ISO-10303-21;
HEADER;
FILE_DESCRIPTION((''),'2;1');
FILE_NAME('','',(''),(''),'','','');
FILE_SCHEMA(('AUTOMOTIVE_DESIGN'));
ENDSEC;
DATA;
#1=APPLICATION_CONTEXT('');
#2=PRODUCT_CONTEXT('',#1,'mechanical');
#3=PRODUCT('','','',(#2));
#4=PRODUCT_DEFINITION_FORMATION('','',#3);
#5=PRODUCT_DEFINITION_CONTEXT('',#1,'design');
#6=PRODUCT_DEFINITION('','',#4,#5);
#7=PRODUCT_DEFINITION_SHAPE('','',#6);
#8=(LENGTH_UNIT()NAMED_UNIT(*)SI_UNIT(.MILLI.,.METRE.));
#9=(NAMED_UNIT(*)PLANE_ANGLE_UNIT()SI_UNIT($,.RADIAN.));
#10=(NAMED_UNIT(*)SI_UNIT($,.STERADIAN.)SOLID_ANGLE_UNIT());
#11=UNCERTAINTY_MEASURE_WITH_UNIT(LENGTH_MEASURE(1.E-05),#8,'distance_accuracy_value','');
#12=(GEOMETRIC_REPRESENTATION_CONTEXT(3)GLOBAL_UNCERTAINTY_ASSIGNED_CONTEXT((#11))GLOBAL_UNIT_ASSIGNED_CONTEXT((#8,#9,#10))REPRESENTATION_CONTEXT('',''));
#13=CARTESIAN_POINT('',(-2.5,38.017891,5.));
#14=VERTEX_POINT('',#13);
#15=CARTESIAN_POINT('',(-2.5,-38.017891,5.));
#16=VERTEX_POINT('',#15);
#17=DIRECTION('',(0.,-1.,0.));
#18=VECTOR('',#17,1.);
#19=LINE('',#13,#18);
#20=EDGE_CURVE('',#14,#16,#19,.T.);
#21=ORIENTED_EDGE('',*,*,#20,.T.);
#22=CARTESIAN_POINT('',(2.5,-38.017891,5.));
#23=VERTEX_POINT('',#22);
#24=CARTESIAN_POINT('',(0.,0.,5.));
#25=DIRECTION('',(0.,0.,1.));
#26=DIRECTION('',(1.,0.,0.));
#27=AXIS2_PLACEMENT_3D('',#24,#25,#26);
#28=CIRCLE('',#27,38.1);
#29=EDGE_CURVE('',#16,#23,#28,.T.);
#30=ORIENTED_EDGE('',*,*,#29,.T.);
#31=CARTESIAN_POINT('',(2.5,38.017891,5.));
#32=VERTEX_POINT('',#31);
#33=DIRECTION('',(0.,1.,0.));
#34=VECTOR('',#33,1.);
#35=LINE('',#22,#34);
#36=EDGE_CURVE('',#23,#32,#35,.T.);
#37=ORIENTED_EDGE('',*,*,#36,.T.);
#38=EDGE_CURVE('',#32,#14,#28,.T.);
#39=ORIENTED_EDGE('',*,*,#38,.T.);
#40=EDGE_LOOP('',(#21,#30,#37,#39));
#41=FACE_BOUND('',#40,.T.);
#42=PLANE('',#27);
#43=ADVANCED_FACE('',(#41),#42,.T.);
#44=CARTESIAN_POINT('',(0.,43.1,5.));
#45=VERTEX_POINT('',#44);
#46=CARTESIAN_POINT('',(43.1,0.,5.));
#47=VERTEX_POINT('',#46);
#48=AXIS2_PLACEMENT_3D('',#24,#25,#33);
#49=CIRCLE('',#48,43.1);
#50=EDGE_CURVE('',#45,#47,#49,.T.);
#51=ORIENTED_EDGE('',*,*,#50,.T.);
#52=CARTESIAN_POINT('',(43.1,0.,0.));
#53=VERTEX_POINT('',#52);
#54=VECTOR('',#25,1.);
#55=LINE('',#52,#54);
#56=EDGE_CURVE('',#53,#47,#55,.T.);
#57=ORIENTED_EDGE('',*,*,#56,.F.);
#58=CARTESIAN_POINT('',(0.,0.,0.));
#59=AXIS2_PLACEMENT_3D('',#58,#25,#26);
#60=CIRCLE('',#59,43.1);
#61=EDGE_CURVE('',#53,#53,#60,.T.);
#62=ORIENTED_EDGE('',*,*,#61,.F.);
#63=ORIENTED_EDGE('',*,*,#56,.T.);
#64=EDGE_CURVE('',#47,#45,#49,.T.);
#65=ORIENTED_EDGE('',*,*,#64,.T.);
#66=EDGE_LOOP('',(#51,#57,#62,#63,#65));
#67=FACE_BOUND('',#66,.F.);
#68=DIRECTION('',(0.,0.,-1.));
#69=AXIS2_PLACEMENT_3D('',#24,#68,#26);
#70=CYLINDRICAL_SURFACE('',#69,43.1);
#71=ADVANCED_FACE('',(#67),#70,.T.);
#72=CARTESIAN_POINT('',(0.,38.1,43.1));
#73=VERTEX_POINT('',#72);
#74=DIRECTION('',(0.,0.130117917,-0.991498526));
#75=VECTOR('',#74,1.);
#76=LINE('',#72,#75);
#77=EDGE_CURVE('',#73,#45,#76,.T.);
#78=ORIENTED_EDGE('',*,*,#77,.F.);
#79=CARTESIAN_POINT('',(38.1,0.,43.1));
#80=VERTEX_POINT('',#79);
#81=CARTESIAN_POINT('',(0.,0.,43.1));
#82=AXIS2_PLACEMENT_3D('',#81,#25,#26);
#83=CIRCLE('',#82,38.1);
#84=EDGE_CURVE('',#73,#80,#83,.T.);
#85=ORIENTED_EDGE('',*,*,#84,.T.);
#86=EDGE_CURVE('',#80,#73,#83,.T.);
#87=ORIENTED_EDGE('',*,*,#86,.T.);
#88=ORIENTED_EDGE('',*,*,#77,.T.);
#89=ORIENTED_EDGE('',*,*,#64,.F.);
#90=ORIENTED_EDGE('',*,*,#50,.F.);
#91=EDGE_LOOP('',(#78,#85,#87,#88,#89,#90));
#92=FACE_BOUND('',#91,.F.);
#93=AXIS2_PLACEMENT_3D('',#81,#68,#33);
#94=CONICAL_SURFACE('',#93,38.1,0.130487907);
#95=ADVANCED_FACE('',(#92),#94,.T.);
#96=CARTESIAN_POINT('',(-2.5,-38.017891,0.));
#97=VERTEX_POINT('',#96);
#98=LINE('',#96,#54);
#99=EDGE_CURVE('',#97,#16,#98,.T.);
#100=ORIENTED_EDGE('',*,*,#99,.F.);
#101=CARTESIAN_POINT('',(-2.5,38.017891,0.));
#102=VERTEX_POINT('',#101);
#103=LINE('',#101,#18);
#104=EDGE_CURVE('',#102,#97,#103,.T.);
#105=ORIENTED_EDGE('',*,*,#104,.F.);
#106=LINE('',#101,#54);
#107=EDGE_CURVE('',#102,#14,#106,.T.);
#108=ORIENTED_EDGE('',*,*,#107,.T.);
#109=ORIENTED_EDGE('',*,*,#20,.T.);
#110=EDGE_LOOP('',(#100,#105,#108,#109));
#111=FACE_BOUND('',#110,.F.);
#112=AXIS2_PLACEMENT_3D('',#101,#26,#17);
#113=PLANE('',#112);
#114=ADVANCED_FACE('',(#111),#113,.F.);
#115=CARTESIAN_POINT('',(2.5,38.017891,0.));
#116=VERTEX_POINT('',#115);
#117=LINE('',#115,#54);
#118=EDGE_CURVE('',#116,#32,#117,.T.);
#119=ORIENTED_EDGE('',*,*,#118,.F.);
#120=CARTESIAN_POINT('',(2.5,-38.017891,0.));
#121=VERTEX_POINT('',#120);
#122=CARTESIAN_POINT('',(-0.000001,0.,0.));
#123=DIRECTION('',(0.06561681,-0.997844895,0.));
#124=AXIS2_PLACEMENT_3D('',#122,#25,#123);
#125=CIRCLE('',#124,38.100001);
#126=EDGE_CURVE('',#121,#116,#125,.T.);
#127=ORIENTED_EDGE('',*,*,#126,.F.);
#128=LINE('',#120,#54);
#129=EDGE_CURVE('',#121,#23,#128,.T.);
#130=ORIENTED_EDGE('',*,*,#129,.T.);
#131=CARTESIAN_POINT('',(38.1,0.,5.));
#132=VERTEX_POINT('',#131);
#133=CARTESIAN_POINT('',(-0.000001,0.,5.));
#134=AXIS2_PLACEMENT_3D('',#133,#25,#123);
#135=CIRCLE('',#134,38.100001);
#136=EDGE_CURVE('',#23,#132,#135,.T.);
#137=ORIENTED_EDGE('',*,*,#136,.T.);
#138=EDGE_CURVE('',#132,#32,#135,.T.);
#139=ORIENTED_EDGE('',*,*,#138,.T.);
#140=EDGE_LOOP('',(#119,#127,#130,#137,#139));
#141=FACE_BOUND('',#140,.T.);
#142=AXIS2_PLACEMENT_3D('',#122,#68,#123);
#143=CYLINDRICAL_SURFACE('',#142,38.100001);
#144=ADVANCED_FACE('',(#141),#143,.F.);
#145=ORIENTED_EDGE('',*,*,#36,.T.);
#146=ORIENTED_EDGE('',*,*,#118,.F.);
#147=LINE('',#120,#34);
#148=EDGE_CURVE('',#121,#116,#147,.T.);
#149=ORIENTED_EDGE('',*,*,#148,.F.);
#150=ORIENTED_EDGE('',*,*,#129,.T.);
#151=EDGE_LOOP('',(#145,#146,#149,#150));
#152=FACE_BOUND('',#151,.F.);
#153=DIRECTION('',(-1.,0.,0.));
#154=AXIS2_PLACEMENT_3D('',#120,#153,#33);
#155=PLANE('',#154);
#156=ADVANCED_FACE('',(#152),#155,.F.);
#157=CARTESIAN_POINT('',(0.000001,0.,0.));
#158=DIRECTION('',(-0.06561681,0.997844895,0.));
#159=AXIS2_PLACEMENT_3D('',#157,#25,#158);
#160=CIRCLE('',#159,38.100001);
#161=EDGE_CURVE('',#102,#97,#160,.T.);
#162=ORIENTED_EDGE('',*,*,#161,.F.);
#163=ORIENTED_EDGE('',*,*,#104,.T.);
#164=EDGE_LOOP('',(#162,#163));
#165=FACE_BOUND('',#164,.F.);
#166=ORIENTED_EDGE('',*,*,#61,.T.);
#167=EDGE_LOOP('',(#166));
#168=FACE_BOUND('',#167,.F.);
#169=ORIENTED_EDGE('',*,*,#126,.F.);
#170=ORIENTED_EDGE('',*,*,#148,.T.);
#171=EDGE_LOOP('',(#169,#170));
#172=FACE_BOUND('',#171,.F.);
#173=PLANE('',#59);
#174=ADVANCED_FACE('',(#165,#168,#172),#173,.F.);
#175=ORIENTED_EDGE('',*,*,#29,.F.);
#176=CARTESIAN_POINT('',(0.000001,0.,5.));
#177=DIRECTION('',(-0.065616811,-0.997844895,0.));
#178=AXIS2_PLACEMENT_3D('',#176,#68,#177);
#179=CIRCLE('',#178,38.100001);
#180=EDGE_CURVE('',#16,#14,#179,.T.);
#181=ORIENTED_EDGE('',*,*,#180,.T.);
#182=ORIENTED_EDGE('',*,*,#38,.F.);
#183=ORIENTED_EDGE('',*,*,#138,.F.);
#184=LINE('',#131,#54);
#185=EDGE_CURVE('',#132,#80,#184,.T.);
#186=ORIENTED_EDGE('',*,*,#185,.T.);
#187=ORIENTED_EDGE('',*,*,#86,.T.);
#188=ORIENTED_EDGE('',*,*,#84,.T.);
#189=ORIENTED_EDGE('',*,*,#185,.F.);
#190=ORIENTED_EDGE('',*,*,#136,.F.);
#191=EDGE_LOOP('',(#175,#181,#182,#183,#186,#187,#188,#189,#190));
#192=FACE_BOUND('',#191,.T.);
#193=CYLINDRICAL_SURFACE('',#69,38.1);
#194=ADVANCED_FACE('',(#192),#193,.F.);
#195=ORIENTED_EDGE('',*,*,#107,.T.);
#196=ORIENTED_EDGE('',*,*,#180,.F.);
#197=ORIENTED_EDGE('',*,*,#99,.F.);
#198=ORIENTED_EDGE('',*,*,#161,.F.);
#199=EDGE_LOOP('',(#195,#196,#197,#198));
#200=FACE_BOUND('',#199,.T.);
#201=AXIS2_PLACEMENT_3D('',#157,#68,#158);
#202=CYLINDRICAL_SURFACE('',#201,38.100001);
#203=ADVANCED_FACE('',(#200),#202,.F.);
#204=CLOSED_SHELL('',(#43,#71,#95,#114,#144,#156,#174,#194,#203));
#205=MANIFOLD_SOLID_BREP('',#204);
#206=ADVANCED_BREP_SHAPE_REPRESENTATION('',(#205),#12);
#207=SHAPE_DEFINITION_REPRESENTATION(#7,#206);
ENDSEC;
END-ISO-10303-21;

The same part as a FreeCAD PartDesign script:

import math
import FreeCAD as App
import Part
import Sketcher
from FreeCAD import Vector
Q = App.Units.Quantity

doc = App.newDocument("Part")
params = doc.addObject("Spreadsheet::Sheet", "Params")
for row, (alias, value) in enumerate([
    ("sketch1_radius", "1.5 in"),
    ("pad1_length", "5 mm"),
    ("sketch2_diameter", "3 in"),
    ("pad2_length", "1.5 in"),
    ("sketch3_height", "1.5 in"),
    ("groove_angle", "360 deg"),
], start=1):
    params.set(f"A{row}", alias)
    params.set(f"B{row}", "=" + value)
    params.setAlias(f"B{row}", alias)

body = doc.addObject("PartDesign::Body", "Body")

sketch1 = doc.addObject("Sketcher::SketchObject", "Sketch")
body.addObject(sketch1)
sketch1.AttachmentSupport = (doc.XY_Plane, [""])
sketch1.MapMode = "FlatFace"
sketch1.addGeometry([
    Part.Circle(Vector(0, 0, 0), Vector(0, 0, 1), 43),
    Part.ArcOfCircle(Part.Circle(Vector(0, 0, 0), Vector(0, 0, 1), 38), math.radians(94), math.radians(266)),
    Part.LineSegment(Vector(-2, 38, 0), Vector(-2, -38, 0)),
    Part.ArcOfCircle(Part.Circle(Vector(0, 0, 0), Vector(0, 0, 1), 38), math.radians(-86), math.radians(86)),
    Part.LineSegment(Vector(2, -38, 0), Vector(2, 38, 0)),
], False)
sketch1.addConstraint([
    Sketcher.Constraint("Coincident", 1, 1, 2, 1),
    Sketcher.Constraint("Coincident", 2, 2, 1, 2),
    Sketcher.Constraint("Coincident", 3, 1, 4, 1),
    Sketcher.Constraint("Coincident", 4, 2, 3, 2),
    Sketcher.Constraint("Vertical", 2),
    Sketcher.Constraint("Vertical", 4),
    Sketcher.Constraint("Coincident", 0, 3, -1, 1),
    Sketcher.Constraint("Coincident", 1, 3, -1, 1),
    Sketcher.Constraint("Coincident", 3, 3, -1, 1),
    Sketcher.Constraint("Equal", 1, 3),
    Sketcher.Constraint("Horizontal", 2, 2, 3, 1),
    Sketcher.Constraint("Radius", 1, Q("1.5 in")),
    Sketcher.Constraint("Diameter", 0, Q("86.2 mm")),
    Sketcher.Constraint("DistanceY", 2, 2, 2, 1, Q("76.035782 mm")),
])
sketch1.setExpression("Constraints[11]", "Params.sketch1_radius")
pad1 = doc.addObject("PartDesign::Pad", "Pad")
body.addObject(pad1)
pad1.Profile = sketch1
pad1.setExpression("Length", "Params.pad1_length")

sketch2 = doc.addObject("Sketcher::SketchObject", "Sketch001")
body.addObject(sketch2)
sketch2.AttachmentSupport = (doc.XY_Plane, [""])
sketch2.MapMode = "FlatFace"
sketch2.AttachmentOffset = App.Placement(Vector(0, 0, 5), App.Rotation())
sketch2.addGeometry([
    Part.Circle(Vector(0, 0, 0), Vector(0, 0, 1), 43),
    Part.Circle(Vector(0, 0, 0), Vector(0, 0, 1), 38),
], False)
sketch2.addConstraint([
    Sketcher.Constraint("Coincident", 0, 3, -1, 1),
    Sketcher.Constraint("Coincident", 1, 3, -1, 1),
    Sketcher.Constraint("Diameter", 1, Q("3 in")),
    Sketcher.Constraint("Diameter", 0, Q("86.2 mm")),
])
sketch2.setExpression("Constraints[2]", "Params.sketch2_diameter")
pad2 = doc.addObject("PartDesign::Pad", "Pad001")
body.addObject(pad2)
pad2.Profile = sketch2
pad2.setExpression("Length", "Params.pad2_length")

sketch3 = doc.addObject("Sketcher::SketchObject", "Sketch002")
body.addObject(sketch3)
sketch3.AttachmentSupport = (doc.YZ_Plane, [""])
sketch3.MapMode = "FlatFace"
sketch3.addGeometry([
    Part.LineSegment(Vector(38, 43, 0), Vector(43, 5, 0)),
    Part.LineSegment(Vector(43, 5, 0), Vector(43, 43, 0)),
    Part.LineSegment(Vector(43, 43, 0), Vector(38, 43, 0)),
], False)
sketch3.addConstraint([
    Sketcher.Constraint("Coincident", 0, 2, 1, 1),
    Sketcher.Constraint("Coincident", 1, 2, 2, 1),
    Sketcher.Constraint("Coincident", 2, 2, 0, 1),
    Sketcher.Constraint("Vertical", 1),
    Sketcher.Constraint("Horizontal", 2),
    Sketcher.Constraint("DistanceY", 1, 1, 1, 2, Q("1.5 in")),
    Sketcher.Constraint("DistanceX", -1, 1, 2, 2, Q("1.5 in")),
    Sketcher.Constraint("DistanceX", 2, 2, 2, 1, Q("5 mm")),
    Sketcher.Constraint("DistanceY", -1, 1, 0, 2, Q("5 mm")),
])
sketch3.setExpression("Constraints[5]", "Params.sketch3_height")
groove = doc.addObject("PartDesign::Groove", "Groove")
body.addObject(groove)
groove.Profile = sketch3
groove.ReferenceAxis = (sketch3, ["V_Axis"])
groove.setExpression("Angle", "Params.groove_angle")

doc.recompute()
